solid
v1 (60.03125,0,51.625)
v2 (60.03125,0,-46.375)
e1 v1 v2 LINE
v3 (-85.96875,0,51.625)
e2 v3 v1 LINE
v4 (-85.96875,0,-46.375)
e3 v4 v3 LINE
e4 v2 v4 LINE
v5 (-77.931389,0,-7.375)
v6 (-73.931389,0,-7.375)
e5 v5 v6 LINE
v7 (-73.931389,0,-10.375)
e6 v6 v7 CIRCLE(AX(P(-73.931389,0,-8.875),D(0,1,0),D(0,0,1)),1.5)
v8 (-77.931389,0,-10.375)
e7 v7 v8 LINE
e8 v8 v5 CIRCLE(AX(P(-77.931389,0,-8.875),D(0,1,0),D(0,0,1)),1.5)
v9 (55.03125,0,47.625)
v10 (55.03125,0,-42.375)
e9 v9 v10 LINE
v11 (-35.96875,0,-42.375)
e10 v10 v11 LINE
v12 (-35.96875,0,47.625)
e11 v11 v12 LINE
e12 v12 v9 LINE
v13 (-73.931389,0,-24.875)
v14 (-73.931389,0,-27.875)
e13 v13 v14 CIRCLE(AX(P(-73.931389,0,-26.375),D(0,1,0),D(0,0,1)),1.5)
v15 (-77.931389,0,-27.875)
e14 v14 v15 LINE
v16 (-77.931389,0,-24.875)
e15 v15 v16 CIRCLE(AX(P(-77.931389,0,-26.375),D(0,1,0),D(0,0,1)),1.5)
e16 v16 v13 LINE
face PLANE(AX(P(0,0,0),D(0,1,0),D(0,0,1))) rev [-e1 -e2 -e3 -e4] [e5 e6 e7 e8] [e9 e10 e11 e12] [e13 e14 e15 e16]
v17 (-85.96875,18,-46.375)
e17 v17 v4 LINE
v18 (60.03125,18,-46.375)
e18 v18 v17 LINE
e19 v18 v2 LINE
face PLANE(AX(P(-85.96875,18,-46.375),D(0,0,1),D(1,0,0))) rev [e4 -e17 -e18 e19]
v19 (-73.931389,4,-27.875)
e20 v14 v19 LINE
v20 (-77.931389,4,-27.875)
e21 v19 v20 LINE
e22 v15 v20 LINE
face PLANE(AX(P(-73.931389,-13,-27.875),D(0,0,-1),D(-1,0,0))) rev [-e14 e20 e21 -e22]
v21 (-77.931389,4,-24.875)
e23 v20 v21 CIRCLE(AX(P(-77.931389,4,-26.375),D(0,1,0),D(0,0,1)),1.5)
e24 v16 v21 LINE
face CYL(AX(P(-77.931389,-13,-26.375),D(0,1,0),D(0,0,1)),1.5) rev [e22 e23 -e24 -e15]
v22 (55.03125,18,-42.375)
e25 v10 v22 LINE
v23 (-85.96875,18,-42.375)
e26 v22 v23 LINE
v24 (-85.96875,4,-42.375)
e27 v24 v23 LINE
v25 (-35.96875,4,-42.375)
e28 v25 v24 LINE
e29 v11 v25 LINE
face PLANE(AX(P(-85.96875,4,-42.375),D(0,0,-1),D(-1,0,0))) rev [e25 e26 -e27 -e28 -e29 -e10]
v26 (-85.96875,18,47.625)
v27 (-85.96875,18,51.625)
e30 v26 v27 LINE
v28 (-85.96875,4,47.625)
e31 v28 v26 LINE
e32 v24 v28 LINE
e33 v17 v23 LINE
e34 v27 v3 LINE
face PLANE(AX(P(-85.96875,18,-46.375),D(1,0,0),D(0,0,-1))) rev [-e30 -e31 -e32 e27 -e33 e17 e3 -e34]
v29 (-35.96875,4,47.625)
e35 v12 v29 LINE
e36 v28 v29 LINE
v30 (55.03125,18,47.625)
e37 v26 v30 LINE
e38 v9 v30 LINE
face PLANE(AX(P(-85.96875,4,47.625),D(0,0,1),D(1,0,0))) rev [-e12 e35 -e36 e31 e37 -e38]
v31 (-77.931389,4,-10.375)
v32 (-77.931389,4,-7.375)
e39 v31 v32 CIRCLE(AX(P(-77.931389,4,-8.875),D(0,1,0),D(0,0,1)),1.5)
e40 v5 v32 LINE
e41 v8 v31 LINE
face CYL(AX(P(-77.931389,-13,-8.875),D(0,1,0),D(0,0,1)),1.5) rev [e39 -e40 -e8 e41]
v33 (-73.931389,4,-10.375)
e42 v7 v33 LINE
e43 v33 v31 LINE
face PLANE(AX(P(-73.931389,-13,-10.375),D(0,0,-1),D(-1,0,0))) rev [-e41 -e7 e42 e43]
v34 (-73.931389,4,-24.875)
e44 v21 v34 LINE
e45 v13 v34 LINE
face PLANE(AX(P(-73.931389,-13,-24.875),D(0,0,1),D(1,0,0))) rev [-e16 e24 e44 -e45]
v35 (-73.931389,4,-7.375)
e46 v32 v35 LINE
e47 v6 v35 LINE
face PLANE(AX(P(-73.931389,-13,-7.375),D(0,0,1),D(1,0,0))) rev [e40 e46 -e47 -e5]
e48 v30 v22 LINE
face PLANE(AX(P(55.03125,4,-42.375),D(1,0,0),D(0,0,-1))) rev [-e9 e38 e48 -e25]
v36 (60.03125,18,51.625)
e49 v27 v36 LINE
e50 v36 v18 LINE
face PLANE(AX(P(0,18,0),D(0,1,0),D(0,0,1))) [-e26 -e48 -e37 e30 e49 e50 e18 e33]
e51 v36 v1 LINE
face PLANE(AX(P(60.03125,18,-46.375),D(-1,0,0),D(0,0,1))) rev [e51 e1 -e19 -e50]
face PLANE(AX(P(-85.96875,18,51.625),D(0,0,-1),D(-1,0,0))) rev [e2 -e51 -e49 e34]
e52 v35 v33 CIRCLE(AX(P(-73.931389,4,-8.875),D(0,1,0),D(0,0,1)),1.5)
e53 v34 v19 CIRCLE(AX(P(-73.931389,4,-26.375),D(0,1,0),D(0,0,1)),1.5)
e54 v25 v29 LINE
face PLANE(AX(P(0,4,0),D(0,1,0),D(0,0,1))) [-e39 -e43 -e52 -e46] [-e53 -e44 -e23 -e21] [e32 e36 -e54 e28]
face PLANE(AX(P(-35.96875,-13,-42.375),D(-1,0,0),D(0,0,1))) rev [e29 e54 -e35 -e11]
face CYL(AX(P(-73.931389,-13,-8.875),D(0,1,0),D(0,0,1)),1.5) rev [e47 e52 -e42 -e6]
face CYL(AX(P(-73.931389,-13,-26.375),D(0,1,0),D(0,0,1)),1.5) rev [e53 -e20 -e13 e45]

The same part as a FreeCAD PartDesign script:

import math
import FreeCAD as App
import Part
import Sketcher
from FreeCAD import Vector
Q = App.Units.Quantity


def add_polygon(sketch, points):
    """Adds a closed chain of lines whose ends are joined by coincident constraints."""
    first, n = sketch.GeometryCount, len(points)
    for a, b in zip(points, points[1:] + points[:1]):
        sketch.addGeometry(Part.LineSegment(App.Vector(*a, 0), App.Vector(*b, 0)), False)
    for i in range(n):
        sketch.addConstraint(Sketcher.Constraint("Coincident", first + i, 2, first + (i + 1) % n, 1))

doc = App.newDocument("Part")
body = doc.addObject("PartDesign::Body", "Body")

# Sketch on XZ plane
sketch1 = doc.addObject("Sketcher::SketchObject", "Sketch")
body.addObject(sketch1)
sketch1.AttachmentSupport = (doc.XZ_Plane, [""])
sketch1.MapMode = "FlatFace"
add_polygon(sketch1, [(-86, -46), (-86, 52), (60, 52), (60, -46)])  # lines 0-3
sketch1.addConstraint(Sketcher.Constraint("Vertical", 0))
sketch1.addConstraint(Sketcher.Constraint("Horizontal", 1))
sketch1.addConstraint(Sketcher.Constraint("Vertical", 2))
sketch1.addConstraint(Sketcher.Constraint("Horizontal", 3))
sketch1.addConstraint(Sketcher.Constraint("DistanceX", 1, 1, 1, 2, Q("146 mm")))
sketch1.addConstraint(Sketcher.Constraint("DistanceY", 0, 1, 0, 2, Q("98 mm")))
sketch1.addConstraint(Sketcher.Constraint("DistanceY", -1, 1, 0, 2, Q("51.625 mm")))
sketch1.addConstraint(Sketcher.Constraint("DistanceX", 0, 2, -1, 1, Q("85.96875 mm")))
pad1 = doc.addObject("PartDesign::Pad", "Pad")
body.addObject(pad1)
pad1.Profile = sketch1
pad1.Length = 18
pad1.Reversed = True

# Sketch on XZ plane
sketch2 = doc.addObject("Sketcher::SketchObject", "Sketch001")
body.addObject(sketch2)
sketch2.AttachmentSupport = (doc.XZ_Plane, [""])
sketch2.MapMode = "FlatFace"
sketch2.AttachmentOffset = App.Placement(Vector(0, 0, -18), App.Rotation())
add_polygon(sketch2, [(-86, -42), (-86, 48), (55, 48), (55, -42)])  # lines 0-3
sketch2.addConstraint(Sketcher.Constraint("Vertical", 0))
sketch2.addConstraint(Sketcher.Constraint("Horizontal", 1))
sketch2.addConstraint(Sketcher.Constraint("Vertical", 2))
sketch2.addConstraint(Sketcher.Constraint("Horizontal", 3))
sketch2.addConstraint(Sketcher.Constraint("DistanceX", 1, 1, 1, 2, Q("141 mm")))
sketch2.addConstraint(Sketcher.Constraint("DistanceY", 0, 1, 0, 2, Q("90 mm")))
sketch2.addConstraint(Sketcher.Constraint("DistanceY", -1, 1, 0, 2, Q("47.625 mm")))
sketch2.addConstraint(Sketcher.Constraint("DistanceX", 0, 2, -1, 1, Q("85.96875 mm")))
pocket1 = doc.addObject("PartDesign::Pocket", "Pocket")
body.addObject(pocket1)
pocket1.Profile = sketch2
pocket1.Length = 14
pocket1.Reversed = True

# Sketch on XZ plane
sketch3 = doc.addObject("Sketcher::SketchObject", "Sketch002")
body.addObject(sketch3)
sketch3.AttachmentSupport = (doc.XZ_Plane, [""])
sketch3.MapMode = "FlatFace"
sketch3.AttachmentOffset = App.Placement(Vector(0, 0, -4), App.Rotation())
add_polygon(sketch3, [(-36, -42), (-36, 48), (55, 48), (55, -42)])  # lines 0-3
sketch3.addConstraint(Sketcher.Constraint("Vertical", 0))
sketch3.addConstraint(Sketcher.Constraint("Horizontal", 1))
sketch3.addConstraint(Sketcher.Constraint("Vertical", 2))
sketch3.addConstraint(Sketcher.Constraint("Horizontal", 3))
sketch3.addConstraint(Sketcher.Constraint("DistanceX", 1, 1, 1, 2, Q("91 mm")))
sketch3.addConstraint(Sketcher.Constraint("DistanceY", 0, 1, 0, 2, Q("90 mm")))
sketch3.addConstraint(Sketcher.Constraint("DistanceY", -1, 1, 0, 2, Q("47.625 mm")))
sketch3.addConstraint(Sketcher.Constraint("DistanceX", 0, 2, -1, 1, Q("35.96875 mm")))
pocket2 = doc.addObject("PartDesign::Pocket", "Pocket001")
body.addObject(pocket2)
pocket2.Profile = sketch3
pocket2.Length = 17
pocket2.Reversed = True

# Sketch on XZ plane
sketch4 = doc.addObject("Sketcher::SketchObject", "Sketch003")
body.addObject(sketch4)
sketch4.AttachmentSupport = (doc.XZ_Plane, [""])
sketch4.MapMode = "FlatFace"
sketch4.AttachmentOffset = App.Placement(Vector(0, 0, -4), App.Rotation())
sketch4.addGeometry(Part.LineSegment(Vector(-77.9, -24.9, 0), Vector(-73.9, -24.9, 0)), False)
sketch4.addGeometry(Part.ArcOfCircle(Part.Circle(Vector(-73.9, -26.4, 0), Vector(0, 0, 1), 1.5), math.radians(-90), math.radians(90)), False)
sketch4.addGeometry(Part.LineSegment(Vector(-73.9, -27.9, 0), Vector(-77.9, -27.9, 0)), False)
sketch4.addGeometry(Part.ArcOfCircle(Part.Circle(Vector(-77.9, -26.4, 0), Vector(0, 0, 1), 1.5), math.radians(90), math.radians(270)), False)
sketch4.addGeometry(Part.LineSegment(Vector(-77.9, -7.4, 0), Vector(-73.9, -7.4, 0)), False)
sketch4.addGeometry(Part.ArcOfCircle(Part.Circle(Vector(-73.9, -8.9, 0), Vector(0, 0, 1), 1.5), math.radians(-90), math.radians(90)), False)
sketch4.addGeometry(Part.LineSegment(Vector(-73.9, -10.4, 0), Vector(-77.9, -10.4, 0)), False)
sketch4.addGeometry(Part.ArcOfCircle(Part.Circle(Vector(-77.9, -8.9, 0), Vector(0, 0, 1), 1.5), math.radians(90), math.radians(270)), False)
sketch4.addConstraint(Sketcher.Constraint("Tangent", 0, 2, 1, 2))
sketch4.addConstraint(Sketcher.Constraint("Tangent", 1, 1, 2, 1))
sketch4.addConstraint(Sketcher.Constraint("Tangent", 2, 2, 3, 2))
sketch4.addConstraint(Sketcher.Constraint("Tangent", 3, 1, 0, 1))
sketch4.addConstraint(Sketcher.Constraint("Tangent", 4, 2, 5, 2))
sketch4.addConstraint(Sketcher.Constraint("Tangent", 5, 1, 6, 1))
sketch4.addConstraint(Sketcher.Constraint("Tangent", 6, 2, 7, 2))
sketch4.addConstraint(Sketcher.Constraint("Tangent", 7, 1, 4, 1))
sketch4.addConstraint(Sketcher.Constraint("Horizontal", 0))
sketch4.addConstraint(Sketcher.Constraint("Horizontal", 2))
sketch4.addConstraint(Sketcher.Constraint("Horizontal", 4))
sketch4.addConstraint(Sketcher.Constraint("Horizontal", 6))
sketch4.addConstraint(Sketcher.Constraint("Equal", 3, 5))
sketch4.addConstraint(Sketcher.Constraint("Vertical", 1, 3, 5, 3))
sketch4.addConstraint(Sketcher.Constraint("Vertical", 3, 3, 7, 3))
sketch4.addConstraint(Sketcher.Constraint("Radius", 1, Q("1.5 mm")))
sketch4.addConstraint(Sketcher.Constraint("DistanceX", 0, 1, 0, 2, Q("4 mm")))
sketch4.addConstraint(Sketcher.Constraint("DistanceY", 0, 2, 5, 3, Q("16 mm")))
sketch4.addConstraint(Sketcher.Constraint("DistanceY", 1, 3, -1, 1, Q("26.375 mm")))
sketch4.addConstraint(Sketcher.Constraint("DistanceX", 1, 3, -1, 1, Q("73.931389 mm")))
pocket3 = doc.addObject("PartDesign::Pocket", "Pocket002")
body.addObject(pocket3)
pocket3.Profile = sketch4
pocket3.Length = 17
pocket3.Reversed = True

doc.recompute()
